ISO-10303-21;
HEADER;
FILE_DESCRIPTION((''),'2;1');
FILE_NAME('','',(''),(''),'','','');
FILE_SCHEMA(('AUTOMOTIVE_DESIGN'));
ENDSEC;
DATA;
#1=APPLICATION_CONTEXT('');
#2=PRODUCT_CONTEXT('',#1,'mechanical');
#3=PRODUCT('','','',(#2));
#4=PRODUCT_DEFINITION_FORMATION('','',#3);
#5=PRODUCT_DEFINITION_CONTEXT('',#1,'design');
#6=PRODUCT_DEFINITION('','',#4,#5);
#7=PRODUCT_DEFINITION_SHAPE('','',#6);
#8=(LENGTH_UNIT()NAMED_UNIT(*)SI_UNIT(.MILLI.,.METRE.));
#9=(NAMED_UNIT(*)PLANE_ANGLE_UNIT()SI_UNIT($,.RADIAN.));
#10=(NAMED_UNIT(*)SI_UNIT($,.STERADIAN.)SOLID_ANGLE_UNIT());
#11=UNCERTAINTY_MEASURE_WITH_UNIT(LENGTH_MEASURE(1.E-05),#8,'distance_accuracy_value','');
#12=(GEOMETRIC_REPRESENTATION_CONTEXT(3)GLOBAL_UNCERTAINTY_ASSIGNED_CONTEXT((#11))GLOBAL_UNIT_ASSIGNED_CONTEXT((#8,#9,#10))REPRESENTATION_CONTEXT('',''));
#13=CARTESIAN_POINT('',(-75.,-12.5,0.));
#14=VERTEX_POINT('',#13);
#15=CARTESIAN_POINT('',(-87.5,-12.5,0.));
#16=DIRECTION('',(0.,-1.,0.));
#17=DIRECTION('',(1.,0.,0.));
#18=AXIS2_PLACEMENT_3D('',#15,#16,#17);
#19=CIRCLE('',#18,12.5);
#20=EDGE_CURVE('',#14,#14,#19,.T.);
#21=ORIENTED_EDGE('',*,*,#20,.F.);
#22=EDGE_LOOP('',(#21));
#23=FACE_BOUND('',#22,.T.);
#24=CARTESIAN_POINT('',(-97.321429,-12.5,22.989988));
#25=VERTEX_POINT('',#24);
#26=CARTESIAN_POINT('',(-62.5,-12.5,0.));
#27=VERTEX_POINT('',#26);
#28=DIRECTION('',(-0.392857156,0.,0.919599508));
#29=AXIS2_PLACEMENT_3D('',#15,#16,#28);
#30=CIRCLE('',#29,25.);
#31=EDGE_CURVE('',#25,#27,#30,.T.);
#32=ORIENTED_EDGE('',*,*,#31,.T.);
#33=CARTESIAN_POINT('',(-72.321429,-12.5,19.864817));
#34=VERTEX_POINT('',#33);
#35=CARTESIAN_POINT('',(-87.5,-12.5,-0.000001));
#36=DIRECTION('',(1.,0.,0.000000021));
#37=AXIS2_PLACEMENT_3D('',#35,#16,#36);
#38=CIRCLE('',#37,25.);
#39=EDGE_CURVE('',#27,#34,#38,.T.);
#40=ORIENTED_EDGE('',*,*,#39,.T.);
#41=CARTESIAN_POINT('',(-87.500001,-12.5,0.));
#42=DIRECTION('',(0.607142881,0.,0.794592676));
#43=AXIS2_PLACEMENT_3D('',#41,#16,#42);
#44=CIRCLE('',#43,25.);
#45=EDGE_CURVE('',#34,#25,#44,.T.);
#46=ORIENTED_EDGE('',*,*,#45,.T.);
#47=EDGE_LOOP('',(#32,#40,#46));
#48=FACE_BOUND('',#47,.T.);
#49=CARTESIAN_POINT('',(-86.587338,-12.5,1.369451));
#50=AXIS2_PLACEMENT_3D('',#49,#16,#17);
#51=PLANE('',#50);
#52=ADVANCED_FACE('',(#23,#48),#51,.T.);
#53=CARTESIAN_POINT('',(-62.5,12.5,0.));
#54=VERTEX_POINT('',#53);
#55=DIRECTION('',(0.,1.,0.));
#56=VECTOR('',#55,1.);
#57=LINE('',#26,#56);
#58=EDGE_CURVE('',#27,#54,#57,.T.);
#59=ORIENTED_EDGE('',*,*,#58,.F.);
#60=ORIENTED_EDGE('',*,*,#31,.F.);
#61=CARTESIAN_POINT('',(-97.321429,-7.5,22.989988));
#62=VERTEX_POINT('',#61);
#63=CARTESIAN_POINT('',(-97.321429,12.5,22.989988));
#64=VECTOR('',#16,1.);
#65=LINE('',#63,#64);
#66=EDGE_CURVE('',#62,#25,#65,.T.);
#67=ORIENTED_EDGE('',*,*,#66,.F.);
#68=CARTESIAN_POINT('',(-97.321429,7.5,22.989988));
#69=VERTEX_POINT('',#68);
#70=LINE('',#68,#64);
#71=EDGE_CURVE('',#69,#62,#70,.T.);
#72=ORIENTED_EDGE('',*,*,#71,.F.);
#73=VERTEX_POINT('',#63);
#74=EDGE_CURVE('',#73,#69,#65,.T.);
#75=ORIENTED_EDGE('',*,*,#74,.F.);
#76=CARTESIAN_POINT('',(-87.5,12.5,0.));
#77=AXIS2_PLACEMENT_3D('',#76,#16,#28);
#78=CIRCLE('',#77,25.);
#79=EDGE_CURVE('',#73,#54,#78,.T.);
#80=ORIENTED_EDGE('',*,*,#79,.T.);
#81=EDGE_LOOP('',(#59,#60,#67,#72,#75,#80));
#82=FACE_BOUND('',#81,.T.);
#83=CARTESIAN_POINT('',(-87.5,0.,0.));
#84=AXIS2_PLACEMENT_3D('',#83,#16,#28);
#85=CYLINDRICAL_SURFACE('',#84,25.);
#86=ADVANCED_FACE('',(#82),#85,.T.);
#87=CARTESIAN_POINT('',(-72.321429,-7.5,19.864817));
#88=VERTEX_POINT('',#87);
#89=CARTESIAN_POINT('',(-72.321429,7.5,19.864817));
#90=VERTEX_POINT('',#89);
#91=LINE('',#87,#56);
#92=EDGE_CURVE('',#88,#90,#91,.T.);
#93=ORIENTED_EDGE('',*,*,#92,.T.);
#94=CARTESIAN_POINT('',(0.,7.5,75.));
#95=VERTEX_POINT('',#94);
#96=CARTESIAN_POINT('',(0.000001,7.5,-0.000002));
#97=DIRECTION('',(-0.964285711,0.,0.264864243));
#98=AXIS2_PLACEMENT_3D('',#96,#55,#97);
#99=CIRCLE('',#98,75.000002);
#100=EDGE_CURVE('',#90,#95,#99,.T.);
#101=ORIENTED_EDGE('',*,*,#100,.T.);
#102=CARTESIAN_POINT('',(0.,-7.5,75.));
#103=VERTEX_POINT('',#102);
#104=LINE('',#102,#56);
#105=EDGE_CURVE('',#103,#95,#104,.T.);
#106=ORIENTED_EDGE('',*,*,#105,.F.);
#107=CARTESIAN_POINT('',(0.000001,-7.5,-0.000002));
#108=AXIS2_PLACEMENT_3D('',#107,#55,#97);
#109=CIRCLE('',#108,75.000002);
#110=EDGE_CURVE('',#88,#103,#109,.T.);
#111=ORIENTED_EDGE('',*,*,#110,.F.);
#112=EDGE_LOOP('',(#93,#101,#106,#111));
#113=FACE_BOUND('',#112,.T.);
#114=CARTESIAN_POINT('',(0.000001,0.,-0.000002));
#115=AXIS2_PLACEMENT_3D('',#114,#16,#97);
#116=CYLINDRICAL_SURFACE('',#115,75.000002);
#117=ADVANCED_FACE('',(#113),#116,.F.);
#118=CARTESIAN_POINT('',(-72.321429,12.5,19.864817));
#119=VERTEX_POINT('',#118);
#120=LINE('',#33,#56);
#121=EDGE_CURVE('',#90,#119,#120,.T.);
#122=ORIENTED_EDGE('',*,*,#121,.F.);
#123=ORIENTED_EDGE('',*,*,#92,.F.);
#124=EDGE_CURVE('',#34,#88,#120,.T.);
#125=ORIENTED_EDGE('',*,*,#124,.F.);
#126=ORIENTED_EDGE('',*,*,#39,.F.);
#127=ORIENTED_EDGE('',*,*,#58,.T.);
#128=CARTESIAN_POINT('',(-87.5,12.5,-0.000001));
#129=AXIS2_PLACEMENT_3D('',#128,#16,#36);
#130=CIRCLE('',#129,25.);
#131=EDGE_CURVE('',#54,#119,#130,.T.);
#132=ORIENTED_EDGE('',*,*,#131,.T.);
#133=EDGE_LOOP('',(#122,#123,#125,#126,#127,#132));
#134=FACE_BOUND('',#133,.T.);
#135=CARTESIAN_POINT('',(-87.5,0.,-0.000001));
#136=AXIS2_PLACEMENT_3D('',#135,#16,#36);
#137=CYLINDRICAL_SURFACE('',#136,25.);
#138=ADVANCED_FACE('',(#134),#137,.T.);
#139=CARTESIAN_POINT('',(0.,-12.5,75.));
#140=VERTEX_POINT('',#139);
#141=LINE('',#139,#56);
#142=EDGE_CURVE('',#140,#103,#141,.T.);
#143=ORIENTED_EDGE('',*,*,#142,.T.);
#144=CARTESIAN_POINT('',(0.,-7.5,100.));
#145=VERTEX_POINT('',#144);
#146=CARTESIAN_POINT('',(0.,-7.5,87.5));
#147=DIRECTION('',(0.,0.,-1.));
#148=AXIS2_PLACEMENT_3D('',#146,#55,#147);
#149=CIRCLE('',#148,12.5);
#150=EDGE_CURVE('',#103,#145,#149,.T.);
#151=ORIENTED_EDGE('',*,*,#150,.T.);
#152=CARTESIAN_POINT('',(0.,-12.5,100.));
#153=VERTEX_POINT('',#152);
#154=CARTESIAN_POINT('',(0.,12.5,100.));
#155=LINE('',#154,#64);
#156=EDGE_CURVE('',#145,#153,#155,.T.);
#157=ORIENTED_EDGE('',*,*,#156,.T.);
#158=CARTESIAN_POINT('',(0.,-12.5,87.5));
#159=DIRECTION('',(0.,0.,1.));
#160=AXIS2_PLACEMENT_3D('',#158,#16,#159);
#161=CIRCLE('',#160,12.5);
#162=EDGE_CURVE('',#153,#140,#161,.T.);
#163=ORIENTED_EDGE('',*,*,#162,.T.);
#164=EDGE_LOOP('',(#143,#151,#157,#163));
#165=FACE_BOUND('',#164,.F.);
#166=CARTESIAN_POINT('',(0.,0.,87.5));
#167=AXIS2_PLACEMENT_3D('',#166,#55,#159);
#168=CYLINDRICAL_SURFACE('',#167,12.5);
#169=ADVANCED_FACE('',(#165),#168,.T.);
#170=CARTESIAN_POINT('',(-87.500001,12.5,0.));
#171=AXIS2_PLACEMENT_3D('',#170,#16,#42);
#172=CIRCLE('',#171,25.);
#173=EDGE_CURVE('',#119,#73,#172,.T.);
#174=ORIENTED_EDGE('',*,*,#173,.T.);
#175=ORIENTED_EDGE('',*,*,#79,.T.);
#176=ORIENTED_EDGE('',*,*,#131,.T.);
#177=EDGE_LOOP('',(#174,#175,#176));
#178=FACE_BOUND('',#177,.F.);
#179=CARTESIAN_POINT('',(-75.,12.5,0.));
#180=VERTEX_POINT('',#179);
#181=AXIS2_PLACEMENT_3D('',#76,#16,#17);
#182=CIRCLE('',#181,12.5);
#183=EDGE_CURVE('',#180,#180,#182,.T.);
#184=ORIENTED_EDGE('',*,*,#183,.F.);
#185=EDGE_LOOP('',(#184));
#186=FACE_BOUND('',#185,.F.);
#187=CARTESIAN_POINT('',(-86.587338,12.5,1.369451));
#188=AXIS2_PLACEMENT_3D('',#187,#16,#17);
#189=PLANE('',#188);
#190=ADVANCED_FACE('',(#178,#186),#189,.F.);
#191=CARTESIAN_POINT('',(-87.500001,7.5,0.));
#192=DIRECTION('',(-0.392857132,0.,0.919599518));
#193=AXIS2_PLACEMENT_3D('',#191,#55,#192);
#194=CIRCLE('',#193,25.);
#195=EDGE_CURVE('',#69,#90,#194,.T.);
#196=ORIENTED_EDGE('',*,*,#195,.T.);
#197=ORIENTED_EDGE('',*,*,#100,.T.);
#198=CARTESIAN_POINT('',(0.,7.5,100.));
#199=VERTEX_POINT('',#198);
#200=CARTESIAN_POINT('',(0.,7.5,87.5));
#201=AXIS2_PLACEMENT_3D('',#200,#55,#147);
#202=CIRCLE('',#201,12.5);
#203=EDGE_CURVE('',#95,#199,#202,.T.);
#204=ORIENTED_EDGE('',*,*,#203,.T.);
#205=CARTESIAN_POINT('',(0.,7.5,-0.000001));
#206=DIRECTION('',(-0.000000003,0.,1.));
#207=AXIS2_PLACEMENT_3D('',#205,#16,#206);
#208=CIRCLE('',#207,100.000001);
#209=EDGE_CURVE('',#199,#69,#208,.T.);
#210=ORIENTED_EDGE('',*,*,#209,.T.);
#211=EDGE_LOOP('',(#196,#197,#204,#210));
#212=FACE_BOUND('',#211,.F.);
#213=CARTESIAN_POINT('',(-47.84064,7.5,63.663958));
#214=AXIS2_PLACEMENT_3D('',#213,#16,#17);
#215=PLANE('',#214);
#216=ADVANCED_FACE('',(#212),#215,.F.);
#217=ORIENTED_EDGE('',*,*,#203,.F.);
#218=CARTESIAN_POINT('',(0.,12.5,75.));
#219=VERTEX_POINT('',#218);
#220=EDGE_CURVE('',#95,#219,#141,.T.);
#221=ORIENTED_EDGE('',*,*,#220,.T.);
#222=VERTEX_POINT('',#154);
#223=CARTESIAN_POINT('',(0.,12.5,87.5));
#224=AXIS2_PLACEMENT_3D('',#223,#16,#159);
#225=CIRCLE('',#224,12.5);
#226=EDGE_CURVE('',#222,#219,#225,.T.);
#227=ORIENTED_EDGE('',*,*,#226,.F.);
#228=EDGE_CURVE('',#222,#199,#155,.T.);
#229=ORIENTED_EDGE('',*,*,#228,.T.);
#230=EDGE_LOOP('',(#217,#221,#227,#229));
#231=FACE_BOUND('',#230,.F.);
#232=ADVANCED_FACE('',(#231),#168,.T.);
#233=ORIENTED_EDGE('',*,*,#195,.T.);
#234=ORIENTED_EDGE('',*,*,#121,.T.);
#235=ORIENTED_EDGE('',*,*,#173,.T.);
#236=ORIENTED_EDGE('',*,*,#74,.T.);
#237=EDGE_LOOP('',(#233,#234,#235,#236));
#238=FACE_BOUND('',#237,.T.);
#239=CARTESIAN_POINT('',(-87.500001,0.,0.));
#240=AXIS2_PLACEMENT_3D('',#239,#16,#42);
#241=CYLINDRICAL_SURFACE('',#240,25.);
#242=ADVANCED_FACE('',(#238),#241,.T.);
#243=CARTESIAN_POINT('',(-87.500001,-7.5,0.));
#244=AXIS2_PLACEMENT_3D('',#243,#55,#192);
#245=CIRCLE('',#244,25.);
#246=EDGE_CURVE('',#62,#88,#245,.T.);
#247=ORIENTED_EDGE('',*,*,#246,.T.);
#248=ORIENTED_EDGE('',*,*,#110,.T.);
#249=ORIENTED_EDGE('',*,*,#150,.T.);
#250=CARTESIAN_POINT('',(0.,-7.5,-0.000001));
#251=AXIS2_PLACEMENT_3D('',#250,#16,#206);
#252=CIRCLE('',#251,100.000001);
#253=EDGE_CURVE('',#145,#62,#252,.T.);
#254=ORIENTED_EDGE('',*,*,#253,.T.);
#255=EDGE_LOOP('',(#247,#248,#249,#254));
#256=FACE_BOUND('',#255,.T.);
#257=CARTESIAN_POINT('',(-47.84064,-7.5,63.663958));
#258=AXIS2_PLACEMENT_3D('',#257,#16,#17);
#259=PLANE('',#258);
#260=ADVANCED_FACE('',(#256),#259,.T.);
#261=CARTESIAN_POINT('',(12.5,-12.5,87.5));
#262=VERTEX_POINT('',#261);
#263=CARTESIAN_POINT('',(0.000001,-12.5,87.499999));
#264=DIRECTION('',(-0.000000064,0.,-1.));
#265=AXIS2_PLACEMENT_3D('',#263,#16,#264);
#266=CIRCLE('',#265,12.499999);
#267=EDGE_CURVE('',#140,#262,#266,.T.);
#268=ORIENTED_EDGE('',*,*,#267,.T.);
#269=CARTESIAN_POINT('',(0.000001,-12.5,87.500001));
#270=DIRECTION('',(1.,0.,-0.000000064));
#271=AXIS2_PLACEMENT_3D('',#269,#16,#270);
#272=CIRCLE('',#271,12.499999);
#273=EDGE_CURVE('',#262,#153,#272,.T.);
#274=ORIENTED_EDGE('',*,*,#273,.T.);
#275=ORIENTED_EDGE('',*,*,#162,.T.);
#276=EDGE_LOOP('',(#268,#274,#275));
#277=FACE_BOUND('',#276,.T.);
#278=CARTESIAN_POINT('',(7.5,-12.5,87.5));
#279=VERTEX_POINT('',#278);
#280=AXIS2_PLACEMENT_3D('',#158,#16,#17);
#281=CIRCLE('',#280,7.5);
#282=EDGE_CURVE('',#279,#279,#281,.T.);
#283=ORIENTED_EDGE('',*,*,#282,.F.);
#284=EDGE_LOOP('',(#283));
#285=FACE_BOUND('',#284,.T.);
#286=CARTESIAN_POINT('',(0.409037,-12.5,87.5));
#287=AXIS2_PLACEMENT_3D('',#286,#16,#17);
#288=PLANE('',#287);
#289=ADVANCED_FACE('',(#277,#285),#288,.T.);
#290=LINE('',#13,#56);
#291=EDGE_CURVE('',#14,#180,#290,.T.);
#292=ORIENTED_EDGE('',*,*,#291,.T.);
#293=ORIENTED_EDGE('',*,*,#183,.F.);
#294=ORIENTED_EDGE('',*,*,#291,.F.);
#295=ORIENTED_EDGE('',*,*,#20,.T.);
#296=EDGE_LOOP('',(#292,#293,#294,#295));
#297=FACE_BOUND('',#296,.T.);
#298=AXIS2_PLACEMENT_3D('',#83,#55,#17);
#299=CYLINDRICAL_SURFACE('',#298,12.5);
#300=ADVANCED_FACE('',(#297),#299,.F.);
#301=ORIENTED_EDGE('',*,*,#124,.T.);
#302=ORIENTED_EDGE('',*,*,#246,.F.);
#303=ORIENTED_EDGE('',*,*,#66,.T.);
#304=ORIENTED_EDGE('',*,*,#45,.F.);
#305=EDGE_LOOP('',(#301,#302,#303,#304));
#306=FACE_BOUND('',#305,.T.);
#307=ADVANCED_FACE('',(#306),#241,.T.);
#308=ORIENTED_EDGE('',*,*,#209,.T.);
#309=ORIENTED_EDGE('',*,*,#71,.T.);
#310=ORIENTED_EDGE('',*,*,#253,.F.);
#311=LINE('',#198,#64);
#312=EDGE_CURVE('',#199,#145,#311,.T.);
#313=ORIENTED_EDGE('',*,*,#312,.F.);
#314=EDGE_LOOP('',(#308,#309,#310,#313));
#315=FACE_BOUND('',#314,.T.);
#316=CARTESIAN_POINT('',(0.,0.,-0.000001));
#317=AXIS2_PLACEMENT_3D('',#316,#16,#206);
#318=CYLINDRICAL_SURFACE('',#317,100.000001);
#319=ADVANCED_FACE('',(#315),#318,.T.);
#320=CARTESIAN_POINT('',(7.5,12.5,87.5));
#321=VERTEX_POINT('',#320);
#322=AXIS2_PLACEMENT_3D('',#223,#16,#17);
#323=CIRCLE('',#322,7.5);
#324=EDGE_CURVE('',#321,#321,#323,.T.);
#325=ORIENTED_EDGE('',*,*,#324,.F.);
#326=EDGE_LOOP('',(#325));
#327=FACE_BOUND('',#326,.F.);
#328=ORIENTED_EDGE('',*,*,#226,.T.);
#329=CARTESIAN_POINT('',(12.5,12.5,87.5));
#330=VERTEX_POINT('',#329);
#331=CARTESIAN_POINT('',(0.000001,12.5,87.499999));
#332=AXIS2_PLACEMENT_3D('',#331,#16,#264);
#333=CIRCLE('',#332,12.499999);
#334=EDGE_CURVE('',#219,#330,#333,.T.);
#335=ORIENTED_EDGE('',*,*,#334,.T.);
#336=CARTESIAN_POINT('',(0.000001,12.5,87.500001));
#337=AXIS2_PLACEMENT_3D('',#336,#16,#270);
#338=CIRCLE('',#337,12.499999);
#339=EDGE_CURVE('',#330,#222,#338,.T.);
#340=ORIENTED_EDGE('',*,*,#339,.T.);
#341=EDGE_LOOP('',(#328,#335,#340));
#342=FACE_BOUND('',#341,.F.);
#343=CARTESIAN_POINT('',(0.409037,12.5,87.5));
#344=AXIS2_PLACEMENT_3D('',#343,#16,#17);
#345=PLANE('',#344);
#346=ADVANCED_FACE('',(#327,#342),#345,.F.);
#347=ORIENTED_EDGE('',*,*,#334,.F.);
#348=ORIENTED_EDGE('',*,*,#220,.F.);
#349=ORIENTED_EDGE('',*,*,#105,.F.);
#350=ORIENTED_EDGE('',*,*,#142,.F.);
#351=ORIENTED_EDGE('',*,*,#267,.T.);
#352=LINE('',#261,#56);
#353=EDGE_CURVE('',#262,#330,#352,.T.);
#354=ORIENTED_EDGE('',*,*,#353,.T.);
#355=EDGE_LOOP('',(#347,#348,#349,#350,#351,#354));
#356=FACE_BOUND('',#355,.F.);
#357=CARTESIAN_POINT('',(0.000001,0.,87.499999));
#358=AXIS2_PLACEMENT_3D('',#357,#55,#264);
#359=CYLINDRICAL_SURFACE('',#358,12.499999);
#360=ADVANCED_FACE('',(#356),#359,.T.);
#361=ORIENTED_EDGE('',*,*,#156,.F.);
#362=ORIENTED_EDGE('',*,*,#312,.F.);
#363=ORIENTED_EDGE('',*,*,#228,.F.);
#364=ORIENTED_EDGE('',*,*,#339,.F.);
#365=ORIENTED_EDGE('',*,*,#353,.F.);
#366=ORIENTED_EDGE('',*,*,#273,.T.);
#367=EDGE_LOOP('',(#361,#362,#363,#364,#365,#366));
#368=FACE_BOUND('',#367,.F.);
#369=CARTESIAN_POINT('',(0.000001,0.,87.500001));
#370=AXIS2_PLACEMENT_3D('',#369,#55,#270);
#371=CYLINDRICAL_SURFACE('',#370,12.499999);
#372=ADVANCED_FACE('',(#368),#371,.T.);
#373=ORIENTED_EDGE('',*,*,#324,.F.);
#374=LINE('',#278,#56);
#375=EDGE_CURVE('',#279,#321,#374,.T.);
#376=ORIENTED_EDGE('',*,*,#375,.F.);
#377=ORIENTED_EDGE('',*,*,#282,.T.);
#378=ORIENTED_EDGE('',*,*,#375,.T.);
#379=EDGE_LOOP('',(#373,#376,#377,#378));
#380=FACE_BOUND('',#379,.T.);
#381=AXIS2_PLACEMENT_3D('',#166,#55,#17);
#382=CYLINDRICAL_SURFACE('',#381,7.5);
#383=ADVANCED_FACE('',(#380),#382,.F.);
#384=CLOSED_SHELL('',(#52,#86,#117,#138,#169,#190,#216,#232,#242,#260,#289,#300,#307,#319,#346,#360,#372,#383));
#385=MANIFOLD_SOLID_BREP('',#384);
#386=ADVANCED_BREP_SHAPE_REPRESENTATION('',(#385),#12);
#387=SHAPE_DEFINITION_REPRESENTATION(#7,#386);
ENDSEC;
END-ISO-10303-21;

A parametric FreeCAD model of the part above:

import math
import FreeCAD as App
import Part
import Sketcher

doc = App.newDocument("Part")
body = doc.addObject("PartDesign::Body", "Body")
body.AllowCompound = True

sketch1 = body.newObject("Sketcher::SketchObject", "Sketch")
sketch1.AttachmentSupport = (doc.getObject("XZ_Plane"), [""])
sketch1.MapMode = "FlatFace"
sketch1.addGeometry([
    Part.ArcOfCircle(Part.Circle(App.Vector(0, 88, 0), App.Vector(0, 0, 1), 12), math.radians(0), math.radians(90)),
    Part.ArcOfCircle(Part.Circle(App.Vector(0, 88, 0), App.Vector(0, 0, 1), 12), math.radians(90), math.radians(270)),
    Part.ArcOfCircle(Part.Circle(App.Vector(0, 87, 0), App.Vector(0, 0, 1), 12), math.radians(-90), math.radians(0)),
    Part.Circle(App.Vector(0, 88, 0), App.Vector(0, 0, 1), 8),
    Part.ArcOfCircle(Part.Circle(App.Vector(-88, 0, 0), App.Vector(0, 0, 1), 25), math.radians(53), math.radians(113)),
    Part.ArcOfCircle(Part.Circle(App.Vector(-88, 0, 0), App.Vector(0, 0, 1), 25), math.radians(113), math.radians(360)),
    Part.ArcOfCircle(Part.Circle(App.Vector(-87, 0, 0), App.Vector(0, 0, 1), 25), math.radians(0), math.radians(53)),
    Part.Circle(App.Vector(-88, 0, 0), App.Vector(0, 0, 1), 12),
], False)
sketch1.addConstraint([
    Sketcher.Constraint("Tangent", 0, 2, 1, 1),
    Sketcher.Constraint("Tangent", 1, 2, 2, 1),
    Sketcher.Constraint("Tangent", 2, 2, 0, 1),
    Sketcher.Constraint("Tangent", 4, 2, 5, 1),
    Sketcher.Constraint("Tangent", 5, 2, 6, 1),
    Sketcher.Constraint("Tangent", 6, 2, 4, 1),
    Sketcher.Constraint("Coincident", 3, 3, 0, 3),
    Sketcher.Constraint("Coincident", 7, 3, 4, 3),
    Sketcher.Constraint("Equal", 2, 7),
    Sketcher.Constraint("PointOnObject", 0, 3, -2),
    Sketcher.Constraint("PointOnObject", 4, 3, -1),
    Sketcher.Constraint("PointOnObject", 0, 2, -2),
    Sketcher.Constraint("PointOnObject", 1, 2, -2),
    Sketcher.Constraint("PointOnObject", 5, 2, -1),
    Sketcher.Constraint("Horizontal", 3, 3, 2, 2),
    Sketcher.Constraint("Diameter", 3, 15.0),
    Sketcher.Constraint("Diameter", 7, 25.0),
    Sketcher.Constraint("Radius", 4, 25.0),
    Sketcher.Constraint("DistanceY", -1, 1, 0, 2, 100.0),
    Sketcher.Constraint("DistanceX", 4, 3, -1, 1, 87.500001),
    Sketcher.Constraint("DistanceX", 4, 2, -1, 1, 97.321429),
    Sketcher.Constraint("DistanceX", 6, 2, -1, 1, 72.321429),
])
pad1 = body.newObject("PartDesign::Pad", "Pad")
pad1.Profile = sketch1
pad1.Length = 25
pad1.Midplane = True

sketch2 = body.newObject("Sketcher::SketchObject", "Sketch001")
sketch2.AttachmentSupport = (doc.getObject("XZ_Plane"), [""])
sketch2.MapMode = "FlatFace"
sketch2.addGeometry([
    Part.ArcOfCircle(Part.Circle(App.Vector(0, 88, 0), App.Vector(0, 0, 1), 12), math.radians(90), math.radians(270)),
    Part.ArcOfCircle(Part.Circle(App.Vector(0, 0, 0), App.Vector(0, 0, 1), 100), math.radians(90), math.radians(167)),
    Part.ArcOfCircle(Part.Circle(App.Vector(-88, 0, 0), App.Vector(0, 0, 1), 25), math.radians(53), math.radians(113)),
    Part.ArcOfCircle(Part.Circle(App.Vector(0, 0, 0), App.Vector(0, 0, 1), 75), math.radians(90), math.radians(165)),
], False)
sketch2.addConstraint([
    Sketcher.Constraint("Tangent", 0, 1, 1, 1),
    Sketcher.Constraint("Coincident", 1, 2, 2, 2),
    Sketcher.Constraint("Coincident", 2, 1, 3, 2),
    Sketcher.Constraint("Tangent", 3, 1, 0, 2),
    Sketcher.Constraint("Coincident", 1, 3, -1, 1),
    Sketcher.Constraint("Coincident", 3, 3, -1, 1),
    Sketcher.Constraint("PointOnObject", 0, 3, -2),
    Sketcher.Constraint("PointOnObject", 2, 3, -1),
    Sketcher.Constraint("Radius", 1, 100.000001),
    Sketcher.Constraint("Radius", 2, 25.0),
    Sketcher.Constraint("Radius", 3, 75.000002),
    Sketcher.Constraint("DistanceX", 1, 2, 2, 1, 25.0),
])
pad2 = body.newObject("PartDesign::Pad", "Pad001")
pad2.Profile = sketch2
pad2.Length = 15
pad2.Midplane = True

doc.recompute()
